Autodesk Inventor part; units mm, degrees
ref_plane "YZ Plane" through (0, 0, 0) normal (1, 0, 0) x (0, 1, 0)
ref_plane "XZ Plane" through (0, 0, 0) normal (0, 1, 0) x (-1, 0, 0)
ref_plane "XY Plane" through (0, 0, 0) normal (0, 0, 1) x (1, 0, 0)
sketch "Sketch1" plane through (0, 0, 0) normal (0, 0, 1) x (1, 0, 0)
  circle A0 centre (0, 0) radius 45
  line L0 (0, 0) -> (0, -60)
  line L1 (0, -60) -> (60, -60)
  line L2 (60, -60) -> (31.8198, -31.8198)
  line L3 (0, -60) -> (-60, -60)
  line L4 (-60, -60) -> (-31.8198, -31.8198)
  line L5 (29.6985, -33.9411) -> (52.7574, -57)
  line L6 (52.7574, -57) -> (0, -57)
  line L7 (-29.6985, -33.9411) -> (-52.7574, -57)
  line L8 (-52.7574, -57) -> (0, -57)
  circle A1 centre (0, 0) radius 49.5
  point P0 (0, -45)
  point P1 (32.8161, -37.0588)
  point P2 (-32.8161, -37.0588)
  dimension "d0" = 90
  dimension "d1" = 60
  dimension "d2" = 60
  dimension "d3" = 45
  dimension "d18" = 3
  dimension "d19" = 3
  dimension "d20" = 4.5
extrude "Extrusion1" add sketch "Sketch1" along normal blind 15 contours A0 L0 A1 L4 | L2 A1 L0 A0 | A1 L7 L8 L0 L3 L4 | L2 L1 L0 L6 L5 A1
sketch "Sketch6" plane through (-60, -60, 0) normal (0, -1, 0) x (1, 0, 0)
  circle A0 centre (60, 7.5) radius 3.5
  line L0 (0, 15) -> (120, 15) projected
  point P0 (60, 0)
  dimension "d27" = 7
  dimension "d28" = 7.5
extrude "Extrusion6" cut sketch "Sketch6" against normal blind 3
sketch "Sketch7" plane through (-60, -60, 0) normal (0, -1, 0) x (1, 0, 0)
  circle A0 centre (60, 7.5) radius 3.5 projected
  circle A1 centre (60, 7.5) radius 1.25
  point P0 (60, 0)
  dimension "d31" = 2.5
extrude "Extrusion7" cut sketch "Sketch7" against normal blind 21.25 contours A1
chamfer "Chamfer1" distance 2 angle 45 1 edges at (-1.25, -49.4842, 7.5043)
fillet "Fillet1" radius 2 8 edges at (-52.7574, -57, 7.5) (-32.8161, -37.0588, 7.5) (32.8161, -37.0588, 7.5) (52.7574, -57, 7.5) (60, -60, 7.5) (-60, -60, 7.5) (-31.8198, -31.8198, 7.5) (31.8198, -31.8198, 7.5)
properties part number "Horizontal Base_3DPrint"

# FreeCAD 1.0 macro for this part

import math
import FreeCAD as App
import Part
import Sketcher

V = App.Vector
Q = App.Units.Quantity


def edges_at(feature, points):
    """Names of the edges that pass closest to the given points."""
    edges = feature.Shape.Edges
    near = lambda p: min(range(len(edges)), key=lambda i: edges[i].distToShape(Part.Vertex(*p))[0])
    return sorted({f"Edge{near(p) + 1}" for p in points})

doc = App.newDocument("Part")
params = doc.addObject("Spreadsheet::Sheet", "Params")
for row, (alias, value) in enumerate([
    ("sketch1_radius", "45 mm"),
    ("sketch1_radius2", "49.5 mm"),
    ("pad1_length", "15 mm"),
    ("sketch2_diameter", "7 mm"),
    ("pocket1_length", "3 mm"),
    ("sketch3_diameter", "2.5 mm"),
    ("pocket2_length", "21.25 mm"),
    ("chamfer_size", "2 mm"),
    ("fillet_radius", "2 mm"),
], start=1):
    params.set(f"A{row}", alias)
    params.set(f"B{row}", "=" + value)
    params.setAlias(f"B{row}", alias)

body = doc.addObject("PartDesign::Body", "Body")

# Sketch on XY plane
sketch1 = body.newObject("Sketcher::SketchObject", "Sketch")
sketch1.AttachmentSupport = (doc.getObject("XY_Plane"), [""])
sketch1.MapMode = "FlatFace"
sketch1.addGeometry([
    Part.LineSegment(V(-32, -32, 0), V(-60, -60, 0)),  # 0
    Part.LineSegment(V(-60, -60, 0), V(60, -60, 0)),  # 1
    Part.LineSegment(V(60, -60, 0), V(32, -32, 0)),  # 2
    Part.ArcOfCircle(Part.Circle(V(0, 0, 0), V(0, 0, 1), 45), math.radians(-135), math.radians(-45)),  # 3
    Part.ArcOfCircle(Part.Circle(V(0, 0, 0), V(0, 0, 1), 50), math.radians(-132), math.radians(-48)),  # 4
    Part.LineSegment(V(33, -37, 0), V(53, -57, 0)),  # 5
    Part.LineSegment(V(53, -57, 0), V(-53, -57, 0)),  # 6
    Part.LineSegment(V(-53, -57, 0), V(-33, -37, 0)),  # 7
], False)
sketch1.addConstraint([
    Sketcher.Constraint("Coincident", 0, 2, 1, 1),
    Sketcher.Constraint("Coincident", 1, 2, 2, 1),
    Sketcher.Constraint("Coincident", 2, 2, 3, 2),
    Sketcher.Constraint("Coincident", 3, 1, 0, 1),
    Sketcher.Constraint("Coincident", 4, 2, 5, 1),
    Sketcher.Constraint("Coincident", 5, 2, 6, 1),
    Sketcher.Constraint("Coincident", 6, 2, 7, 1),
    Sketcher.Constraint("Coincident", 7, 2, 4, 1),
    Sketcher.Constraint("Horizontal", 1),
    Sketcher.Constraint("Horizontal", 6),
    Sketcher.Constraint("Coincident", 3, 3, -1, 1),
    Sketcher.Constraint("Coincident", 4, 3, -1, 1),
    Sketcher.Constraint("Perpendicular", 0, 2),
    Sketcher.Constraint("Parallel", 2, 5),
    Sketcher.Constraint("Perpendicular", 5, 7),
    Sketcher.Constraint("Horizontal", 2, 2, 3, 1),
    Sketcher.Constraint("Horizontal", 4, 2, 7, 2),
    Sketcher.Constraint("Equal", 0, 2),
    Sketcher.Constraint("Radius", 3, Q("45 mm")),
    Sketcher.Constraint("DistanceX", 0, 2, -1, 1, Q("60 mm")),
    Sketcher.Constraint("DistanceY", 0, 2, -1, 1, Q("60 mm")),
    Sketcher.Constraint("DistanceY", 1, 2, 5, 2, Q("3 mm")),
    Sketcher.Constraint("Radius", 4, Q("49.5 mm")),
    Sketcher.Constraint("DistanceX", 6, 2, 6, 1, Q("105.5148 mm")),
])
sketch1.setExpression("Constraints[18]", "Params.sketch1_radius")
sketch1.setExpression("Constraints[22]", "Params.sketch1_radius2")
pad1 = body.newObject("PartDesign::Pad", "Pad")
pad1.Profile = sketch1
pad1.setExpression("Length", "Params.pad1_length")

# Sketch on XZ plane
sketch2 = body.newObject("Sketcher::SketchObject", "Sketch001")
sketch2.AttachmentSupport = (doc.getObject("XZ_Plane"), [""])
sketch2.MapMode = "FlatFace"
sketch2.AttachmentOffset = App.Placement(V(0, 0, 60), App.Rotation())
sketch2.addGeometry(Part.Circle(V(0, 7.5, 0), V(0, 0, 1), 3.5), False)
sketch2.addConstraint([
    Sketcher.Constraint("PointOnObject", 0, 3, -2),
    Sketcher.Constraint("Diameter", 0, Q("7 mm")),
    Sketcher.Constraint("DistanceY", -1, 1, 0, 3, Q("7.5 mm")),
])
sketch2.setExpression("Constraints[1]", "Params.sketch2_diameter")
pocket1 = body.newObject("PartDesign::Pocket", "Pocket")
pocket1.Profile = sketch2
pocket1.setExpression("Length", "Params.pocket1_length")

# Sketch on XZ plane
sketch3 = body.newObject("Sketcher::SketchObject", "Sketch002")
sketch3.AttachmentSupport = (doc.getObject("XZ_Plane"), [""])
sketch3.MapMode = "FlatFace"
sketch3.AttachmentOffset = App.Placement(V(0, 0, 60), App.Rotation())
sketch3.addGeometry(Part.Circle(V(0, 7.5, 0), V(0, 0, 1), 1.2), False)
sketch3.addConstraint([
    Sketcher.Constraint("PointOnObject", 0, 3, -2),
    Sketcher.Constraint("Diameter", 0, Q("2.5 mm")),
    Sketcher.Constraint("DistanceY", -1, 1, 0, 3, Q("7.5 mm")),
])
sketch3.setExpression("Constraints[1]", "Params.sketch3_diameter")
pocket2 = body.newObject("PartDesign::Pocket", "Pocket001")
pocket2.Profile = sketch3
pocket2.setExpression("Length", "Params.pocket2_length")
doc.recompute()

chamfer = body.newObject("PartDesign::Chamfer", "Chamfer")
chamfer.Base = (pocket2, edges_at(pocket2, [(-1.25, -49.484, 7.504)]))
chamfer.setExpression("Size", "Params.chamfer_size")
doc.recompute()

fillet = body.newObject("PartDesign::Fillet", "Fillet")
fillet.Base = (chamfer, edges_at(chamfer, [
    (-52.757, -57, 7.5),
    (-32.816, -37.059, 7.5),
    (32.816, -37.059, 7.5),
    (52.757, -57, 7.5),
    (60, -60, 7.5),
    (-60, -60, 7.5),
    (-31.82, -31.82, 7.5),
    (31.82, -31.82, 7.5),
]))
fillet.setExpression("Radius", "Params.fillet_radius")

doc.recompute()
